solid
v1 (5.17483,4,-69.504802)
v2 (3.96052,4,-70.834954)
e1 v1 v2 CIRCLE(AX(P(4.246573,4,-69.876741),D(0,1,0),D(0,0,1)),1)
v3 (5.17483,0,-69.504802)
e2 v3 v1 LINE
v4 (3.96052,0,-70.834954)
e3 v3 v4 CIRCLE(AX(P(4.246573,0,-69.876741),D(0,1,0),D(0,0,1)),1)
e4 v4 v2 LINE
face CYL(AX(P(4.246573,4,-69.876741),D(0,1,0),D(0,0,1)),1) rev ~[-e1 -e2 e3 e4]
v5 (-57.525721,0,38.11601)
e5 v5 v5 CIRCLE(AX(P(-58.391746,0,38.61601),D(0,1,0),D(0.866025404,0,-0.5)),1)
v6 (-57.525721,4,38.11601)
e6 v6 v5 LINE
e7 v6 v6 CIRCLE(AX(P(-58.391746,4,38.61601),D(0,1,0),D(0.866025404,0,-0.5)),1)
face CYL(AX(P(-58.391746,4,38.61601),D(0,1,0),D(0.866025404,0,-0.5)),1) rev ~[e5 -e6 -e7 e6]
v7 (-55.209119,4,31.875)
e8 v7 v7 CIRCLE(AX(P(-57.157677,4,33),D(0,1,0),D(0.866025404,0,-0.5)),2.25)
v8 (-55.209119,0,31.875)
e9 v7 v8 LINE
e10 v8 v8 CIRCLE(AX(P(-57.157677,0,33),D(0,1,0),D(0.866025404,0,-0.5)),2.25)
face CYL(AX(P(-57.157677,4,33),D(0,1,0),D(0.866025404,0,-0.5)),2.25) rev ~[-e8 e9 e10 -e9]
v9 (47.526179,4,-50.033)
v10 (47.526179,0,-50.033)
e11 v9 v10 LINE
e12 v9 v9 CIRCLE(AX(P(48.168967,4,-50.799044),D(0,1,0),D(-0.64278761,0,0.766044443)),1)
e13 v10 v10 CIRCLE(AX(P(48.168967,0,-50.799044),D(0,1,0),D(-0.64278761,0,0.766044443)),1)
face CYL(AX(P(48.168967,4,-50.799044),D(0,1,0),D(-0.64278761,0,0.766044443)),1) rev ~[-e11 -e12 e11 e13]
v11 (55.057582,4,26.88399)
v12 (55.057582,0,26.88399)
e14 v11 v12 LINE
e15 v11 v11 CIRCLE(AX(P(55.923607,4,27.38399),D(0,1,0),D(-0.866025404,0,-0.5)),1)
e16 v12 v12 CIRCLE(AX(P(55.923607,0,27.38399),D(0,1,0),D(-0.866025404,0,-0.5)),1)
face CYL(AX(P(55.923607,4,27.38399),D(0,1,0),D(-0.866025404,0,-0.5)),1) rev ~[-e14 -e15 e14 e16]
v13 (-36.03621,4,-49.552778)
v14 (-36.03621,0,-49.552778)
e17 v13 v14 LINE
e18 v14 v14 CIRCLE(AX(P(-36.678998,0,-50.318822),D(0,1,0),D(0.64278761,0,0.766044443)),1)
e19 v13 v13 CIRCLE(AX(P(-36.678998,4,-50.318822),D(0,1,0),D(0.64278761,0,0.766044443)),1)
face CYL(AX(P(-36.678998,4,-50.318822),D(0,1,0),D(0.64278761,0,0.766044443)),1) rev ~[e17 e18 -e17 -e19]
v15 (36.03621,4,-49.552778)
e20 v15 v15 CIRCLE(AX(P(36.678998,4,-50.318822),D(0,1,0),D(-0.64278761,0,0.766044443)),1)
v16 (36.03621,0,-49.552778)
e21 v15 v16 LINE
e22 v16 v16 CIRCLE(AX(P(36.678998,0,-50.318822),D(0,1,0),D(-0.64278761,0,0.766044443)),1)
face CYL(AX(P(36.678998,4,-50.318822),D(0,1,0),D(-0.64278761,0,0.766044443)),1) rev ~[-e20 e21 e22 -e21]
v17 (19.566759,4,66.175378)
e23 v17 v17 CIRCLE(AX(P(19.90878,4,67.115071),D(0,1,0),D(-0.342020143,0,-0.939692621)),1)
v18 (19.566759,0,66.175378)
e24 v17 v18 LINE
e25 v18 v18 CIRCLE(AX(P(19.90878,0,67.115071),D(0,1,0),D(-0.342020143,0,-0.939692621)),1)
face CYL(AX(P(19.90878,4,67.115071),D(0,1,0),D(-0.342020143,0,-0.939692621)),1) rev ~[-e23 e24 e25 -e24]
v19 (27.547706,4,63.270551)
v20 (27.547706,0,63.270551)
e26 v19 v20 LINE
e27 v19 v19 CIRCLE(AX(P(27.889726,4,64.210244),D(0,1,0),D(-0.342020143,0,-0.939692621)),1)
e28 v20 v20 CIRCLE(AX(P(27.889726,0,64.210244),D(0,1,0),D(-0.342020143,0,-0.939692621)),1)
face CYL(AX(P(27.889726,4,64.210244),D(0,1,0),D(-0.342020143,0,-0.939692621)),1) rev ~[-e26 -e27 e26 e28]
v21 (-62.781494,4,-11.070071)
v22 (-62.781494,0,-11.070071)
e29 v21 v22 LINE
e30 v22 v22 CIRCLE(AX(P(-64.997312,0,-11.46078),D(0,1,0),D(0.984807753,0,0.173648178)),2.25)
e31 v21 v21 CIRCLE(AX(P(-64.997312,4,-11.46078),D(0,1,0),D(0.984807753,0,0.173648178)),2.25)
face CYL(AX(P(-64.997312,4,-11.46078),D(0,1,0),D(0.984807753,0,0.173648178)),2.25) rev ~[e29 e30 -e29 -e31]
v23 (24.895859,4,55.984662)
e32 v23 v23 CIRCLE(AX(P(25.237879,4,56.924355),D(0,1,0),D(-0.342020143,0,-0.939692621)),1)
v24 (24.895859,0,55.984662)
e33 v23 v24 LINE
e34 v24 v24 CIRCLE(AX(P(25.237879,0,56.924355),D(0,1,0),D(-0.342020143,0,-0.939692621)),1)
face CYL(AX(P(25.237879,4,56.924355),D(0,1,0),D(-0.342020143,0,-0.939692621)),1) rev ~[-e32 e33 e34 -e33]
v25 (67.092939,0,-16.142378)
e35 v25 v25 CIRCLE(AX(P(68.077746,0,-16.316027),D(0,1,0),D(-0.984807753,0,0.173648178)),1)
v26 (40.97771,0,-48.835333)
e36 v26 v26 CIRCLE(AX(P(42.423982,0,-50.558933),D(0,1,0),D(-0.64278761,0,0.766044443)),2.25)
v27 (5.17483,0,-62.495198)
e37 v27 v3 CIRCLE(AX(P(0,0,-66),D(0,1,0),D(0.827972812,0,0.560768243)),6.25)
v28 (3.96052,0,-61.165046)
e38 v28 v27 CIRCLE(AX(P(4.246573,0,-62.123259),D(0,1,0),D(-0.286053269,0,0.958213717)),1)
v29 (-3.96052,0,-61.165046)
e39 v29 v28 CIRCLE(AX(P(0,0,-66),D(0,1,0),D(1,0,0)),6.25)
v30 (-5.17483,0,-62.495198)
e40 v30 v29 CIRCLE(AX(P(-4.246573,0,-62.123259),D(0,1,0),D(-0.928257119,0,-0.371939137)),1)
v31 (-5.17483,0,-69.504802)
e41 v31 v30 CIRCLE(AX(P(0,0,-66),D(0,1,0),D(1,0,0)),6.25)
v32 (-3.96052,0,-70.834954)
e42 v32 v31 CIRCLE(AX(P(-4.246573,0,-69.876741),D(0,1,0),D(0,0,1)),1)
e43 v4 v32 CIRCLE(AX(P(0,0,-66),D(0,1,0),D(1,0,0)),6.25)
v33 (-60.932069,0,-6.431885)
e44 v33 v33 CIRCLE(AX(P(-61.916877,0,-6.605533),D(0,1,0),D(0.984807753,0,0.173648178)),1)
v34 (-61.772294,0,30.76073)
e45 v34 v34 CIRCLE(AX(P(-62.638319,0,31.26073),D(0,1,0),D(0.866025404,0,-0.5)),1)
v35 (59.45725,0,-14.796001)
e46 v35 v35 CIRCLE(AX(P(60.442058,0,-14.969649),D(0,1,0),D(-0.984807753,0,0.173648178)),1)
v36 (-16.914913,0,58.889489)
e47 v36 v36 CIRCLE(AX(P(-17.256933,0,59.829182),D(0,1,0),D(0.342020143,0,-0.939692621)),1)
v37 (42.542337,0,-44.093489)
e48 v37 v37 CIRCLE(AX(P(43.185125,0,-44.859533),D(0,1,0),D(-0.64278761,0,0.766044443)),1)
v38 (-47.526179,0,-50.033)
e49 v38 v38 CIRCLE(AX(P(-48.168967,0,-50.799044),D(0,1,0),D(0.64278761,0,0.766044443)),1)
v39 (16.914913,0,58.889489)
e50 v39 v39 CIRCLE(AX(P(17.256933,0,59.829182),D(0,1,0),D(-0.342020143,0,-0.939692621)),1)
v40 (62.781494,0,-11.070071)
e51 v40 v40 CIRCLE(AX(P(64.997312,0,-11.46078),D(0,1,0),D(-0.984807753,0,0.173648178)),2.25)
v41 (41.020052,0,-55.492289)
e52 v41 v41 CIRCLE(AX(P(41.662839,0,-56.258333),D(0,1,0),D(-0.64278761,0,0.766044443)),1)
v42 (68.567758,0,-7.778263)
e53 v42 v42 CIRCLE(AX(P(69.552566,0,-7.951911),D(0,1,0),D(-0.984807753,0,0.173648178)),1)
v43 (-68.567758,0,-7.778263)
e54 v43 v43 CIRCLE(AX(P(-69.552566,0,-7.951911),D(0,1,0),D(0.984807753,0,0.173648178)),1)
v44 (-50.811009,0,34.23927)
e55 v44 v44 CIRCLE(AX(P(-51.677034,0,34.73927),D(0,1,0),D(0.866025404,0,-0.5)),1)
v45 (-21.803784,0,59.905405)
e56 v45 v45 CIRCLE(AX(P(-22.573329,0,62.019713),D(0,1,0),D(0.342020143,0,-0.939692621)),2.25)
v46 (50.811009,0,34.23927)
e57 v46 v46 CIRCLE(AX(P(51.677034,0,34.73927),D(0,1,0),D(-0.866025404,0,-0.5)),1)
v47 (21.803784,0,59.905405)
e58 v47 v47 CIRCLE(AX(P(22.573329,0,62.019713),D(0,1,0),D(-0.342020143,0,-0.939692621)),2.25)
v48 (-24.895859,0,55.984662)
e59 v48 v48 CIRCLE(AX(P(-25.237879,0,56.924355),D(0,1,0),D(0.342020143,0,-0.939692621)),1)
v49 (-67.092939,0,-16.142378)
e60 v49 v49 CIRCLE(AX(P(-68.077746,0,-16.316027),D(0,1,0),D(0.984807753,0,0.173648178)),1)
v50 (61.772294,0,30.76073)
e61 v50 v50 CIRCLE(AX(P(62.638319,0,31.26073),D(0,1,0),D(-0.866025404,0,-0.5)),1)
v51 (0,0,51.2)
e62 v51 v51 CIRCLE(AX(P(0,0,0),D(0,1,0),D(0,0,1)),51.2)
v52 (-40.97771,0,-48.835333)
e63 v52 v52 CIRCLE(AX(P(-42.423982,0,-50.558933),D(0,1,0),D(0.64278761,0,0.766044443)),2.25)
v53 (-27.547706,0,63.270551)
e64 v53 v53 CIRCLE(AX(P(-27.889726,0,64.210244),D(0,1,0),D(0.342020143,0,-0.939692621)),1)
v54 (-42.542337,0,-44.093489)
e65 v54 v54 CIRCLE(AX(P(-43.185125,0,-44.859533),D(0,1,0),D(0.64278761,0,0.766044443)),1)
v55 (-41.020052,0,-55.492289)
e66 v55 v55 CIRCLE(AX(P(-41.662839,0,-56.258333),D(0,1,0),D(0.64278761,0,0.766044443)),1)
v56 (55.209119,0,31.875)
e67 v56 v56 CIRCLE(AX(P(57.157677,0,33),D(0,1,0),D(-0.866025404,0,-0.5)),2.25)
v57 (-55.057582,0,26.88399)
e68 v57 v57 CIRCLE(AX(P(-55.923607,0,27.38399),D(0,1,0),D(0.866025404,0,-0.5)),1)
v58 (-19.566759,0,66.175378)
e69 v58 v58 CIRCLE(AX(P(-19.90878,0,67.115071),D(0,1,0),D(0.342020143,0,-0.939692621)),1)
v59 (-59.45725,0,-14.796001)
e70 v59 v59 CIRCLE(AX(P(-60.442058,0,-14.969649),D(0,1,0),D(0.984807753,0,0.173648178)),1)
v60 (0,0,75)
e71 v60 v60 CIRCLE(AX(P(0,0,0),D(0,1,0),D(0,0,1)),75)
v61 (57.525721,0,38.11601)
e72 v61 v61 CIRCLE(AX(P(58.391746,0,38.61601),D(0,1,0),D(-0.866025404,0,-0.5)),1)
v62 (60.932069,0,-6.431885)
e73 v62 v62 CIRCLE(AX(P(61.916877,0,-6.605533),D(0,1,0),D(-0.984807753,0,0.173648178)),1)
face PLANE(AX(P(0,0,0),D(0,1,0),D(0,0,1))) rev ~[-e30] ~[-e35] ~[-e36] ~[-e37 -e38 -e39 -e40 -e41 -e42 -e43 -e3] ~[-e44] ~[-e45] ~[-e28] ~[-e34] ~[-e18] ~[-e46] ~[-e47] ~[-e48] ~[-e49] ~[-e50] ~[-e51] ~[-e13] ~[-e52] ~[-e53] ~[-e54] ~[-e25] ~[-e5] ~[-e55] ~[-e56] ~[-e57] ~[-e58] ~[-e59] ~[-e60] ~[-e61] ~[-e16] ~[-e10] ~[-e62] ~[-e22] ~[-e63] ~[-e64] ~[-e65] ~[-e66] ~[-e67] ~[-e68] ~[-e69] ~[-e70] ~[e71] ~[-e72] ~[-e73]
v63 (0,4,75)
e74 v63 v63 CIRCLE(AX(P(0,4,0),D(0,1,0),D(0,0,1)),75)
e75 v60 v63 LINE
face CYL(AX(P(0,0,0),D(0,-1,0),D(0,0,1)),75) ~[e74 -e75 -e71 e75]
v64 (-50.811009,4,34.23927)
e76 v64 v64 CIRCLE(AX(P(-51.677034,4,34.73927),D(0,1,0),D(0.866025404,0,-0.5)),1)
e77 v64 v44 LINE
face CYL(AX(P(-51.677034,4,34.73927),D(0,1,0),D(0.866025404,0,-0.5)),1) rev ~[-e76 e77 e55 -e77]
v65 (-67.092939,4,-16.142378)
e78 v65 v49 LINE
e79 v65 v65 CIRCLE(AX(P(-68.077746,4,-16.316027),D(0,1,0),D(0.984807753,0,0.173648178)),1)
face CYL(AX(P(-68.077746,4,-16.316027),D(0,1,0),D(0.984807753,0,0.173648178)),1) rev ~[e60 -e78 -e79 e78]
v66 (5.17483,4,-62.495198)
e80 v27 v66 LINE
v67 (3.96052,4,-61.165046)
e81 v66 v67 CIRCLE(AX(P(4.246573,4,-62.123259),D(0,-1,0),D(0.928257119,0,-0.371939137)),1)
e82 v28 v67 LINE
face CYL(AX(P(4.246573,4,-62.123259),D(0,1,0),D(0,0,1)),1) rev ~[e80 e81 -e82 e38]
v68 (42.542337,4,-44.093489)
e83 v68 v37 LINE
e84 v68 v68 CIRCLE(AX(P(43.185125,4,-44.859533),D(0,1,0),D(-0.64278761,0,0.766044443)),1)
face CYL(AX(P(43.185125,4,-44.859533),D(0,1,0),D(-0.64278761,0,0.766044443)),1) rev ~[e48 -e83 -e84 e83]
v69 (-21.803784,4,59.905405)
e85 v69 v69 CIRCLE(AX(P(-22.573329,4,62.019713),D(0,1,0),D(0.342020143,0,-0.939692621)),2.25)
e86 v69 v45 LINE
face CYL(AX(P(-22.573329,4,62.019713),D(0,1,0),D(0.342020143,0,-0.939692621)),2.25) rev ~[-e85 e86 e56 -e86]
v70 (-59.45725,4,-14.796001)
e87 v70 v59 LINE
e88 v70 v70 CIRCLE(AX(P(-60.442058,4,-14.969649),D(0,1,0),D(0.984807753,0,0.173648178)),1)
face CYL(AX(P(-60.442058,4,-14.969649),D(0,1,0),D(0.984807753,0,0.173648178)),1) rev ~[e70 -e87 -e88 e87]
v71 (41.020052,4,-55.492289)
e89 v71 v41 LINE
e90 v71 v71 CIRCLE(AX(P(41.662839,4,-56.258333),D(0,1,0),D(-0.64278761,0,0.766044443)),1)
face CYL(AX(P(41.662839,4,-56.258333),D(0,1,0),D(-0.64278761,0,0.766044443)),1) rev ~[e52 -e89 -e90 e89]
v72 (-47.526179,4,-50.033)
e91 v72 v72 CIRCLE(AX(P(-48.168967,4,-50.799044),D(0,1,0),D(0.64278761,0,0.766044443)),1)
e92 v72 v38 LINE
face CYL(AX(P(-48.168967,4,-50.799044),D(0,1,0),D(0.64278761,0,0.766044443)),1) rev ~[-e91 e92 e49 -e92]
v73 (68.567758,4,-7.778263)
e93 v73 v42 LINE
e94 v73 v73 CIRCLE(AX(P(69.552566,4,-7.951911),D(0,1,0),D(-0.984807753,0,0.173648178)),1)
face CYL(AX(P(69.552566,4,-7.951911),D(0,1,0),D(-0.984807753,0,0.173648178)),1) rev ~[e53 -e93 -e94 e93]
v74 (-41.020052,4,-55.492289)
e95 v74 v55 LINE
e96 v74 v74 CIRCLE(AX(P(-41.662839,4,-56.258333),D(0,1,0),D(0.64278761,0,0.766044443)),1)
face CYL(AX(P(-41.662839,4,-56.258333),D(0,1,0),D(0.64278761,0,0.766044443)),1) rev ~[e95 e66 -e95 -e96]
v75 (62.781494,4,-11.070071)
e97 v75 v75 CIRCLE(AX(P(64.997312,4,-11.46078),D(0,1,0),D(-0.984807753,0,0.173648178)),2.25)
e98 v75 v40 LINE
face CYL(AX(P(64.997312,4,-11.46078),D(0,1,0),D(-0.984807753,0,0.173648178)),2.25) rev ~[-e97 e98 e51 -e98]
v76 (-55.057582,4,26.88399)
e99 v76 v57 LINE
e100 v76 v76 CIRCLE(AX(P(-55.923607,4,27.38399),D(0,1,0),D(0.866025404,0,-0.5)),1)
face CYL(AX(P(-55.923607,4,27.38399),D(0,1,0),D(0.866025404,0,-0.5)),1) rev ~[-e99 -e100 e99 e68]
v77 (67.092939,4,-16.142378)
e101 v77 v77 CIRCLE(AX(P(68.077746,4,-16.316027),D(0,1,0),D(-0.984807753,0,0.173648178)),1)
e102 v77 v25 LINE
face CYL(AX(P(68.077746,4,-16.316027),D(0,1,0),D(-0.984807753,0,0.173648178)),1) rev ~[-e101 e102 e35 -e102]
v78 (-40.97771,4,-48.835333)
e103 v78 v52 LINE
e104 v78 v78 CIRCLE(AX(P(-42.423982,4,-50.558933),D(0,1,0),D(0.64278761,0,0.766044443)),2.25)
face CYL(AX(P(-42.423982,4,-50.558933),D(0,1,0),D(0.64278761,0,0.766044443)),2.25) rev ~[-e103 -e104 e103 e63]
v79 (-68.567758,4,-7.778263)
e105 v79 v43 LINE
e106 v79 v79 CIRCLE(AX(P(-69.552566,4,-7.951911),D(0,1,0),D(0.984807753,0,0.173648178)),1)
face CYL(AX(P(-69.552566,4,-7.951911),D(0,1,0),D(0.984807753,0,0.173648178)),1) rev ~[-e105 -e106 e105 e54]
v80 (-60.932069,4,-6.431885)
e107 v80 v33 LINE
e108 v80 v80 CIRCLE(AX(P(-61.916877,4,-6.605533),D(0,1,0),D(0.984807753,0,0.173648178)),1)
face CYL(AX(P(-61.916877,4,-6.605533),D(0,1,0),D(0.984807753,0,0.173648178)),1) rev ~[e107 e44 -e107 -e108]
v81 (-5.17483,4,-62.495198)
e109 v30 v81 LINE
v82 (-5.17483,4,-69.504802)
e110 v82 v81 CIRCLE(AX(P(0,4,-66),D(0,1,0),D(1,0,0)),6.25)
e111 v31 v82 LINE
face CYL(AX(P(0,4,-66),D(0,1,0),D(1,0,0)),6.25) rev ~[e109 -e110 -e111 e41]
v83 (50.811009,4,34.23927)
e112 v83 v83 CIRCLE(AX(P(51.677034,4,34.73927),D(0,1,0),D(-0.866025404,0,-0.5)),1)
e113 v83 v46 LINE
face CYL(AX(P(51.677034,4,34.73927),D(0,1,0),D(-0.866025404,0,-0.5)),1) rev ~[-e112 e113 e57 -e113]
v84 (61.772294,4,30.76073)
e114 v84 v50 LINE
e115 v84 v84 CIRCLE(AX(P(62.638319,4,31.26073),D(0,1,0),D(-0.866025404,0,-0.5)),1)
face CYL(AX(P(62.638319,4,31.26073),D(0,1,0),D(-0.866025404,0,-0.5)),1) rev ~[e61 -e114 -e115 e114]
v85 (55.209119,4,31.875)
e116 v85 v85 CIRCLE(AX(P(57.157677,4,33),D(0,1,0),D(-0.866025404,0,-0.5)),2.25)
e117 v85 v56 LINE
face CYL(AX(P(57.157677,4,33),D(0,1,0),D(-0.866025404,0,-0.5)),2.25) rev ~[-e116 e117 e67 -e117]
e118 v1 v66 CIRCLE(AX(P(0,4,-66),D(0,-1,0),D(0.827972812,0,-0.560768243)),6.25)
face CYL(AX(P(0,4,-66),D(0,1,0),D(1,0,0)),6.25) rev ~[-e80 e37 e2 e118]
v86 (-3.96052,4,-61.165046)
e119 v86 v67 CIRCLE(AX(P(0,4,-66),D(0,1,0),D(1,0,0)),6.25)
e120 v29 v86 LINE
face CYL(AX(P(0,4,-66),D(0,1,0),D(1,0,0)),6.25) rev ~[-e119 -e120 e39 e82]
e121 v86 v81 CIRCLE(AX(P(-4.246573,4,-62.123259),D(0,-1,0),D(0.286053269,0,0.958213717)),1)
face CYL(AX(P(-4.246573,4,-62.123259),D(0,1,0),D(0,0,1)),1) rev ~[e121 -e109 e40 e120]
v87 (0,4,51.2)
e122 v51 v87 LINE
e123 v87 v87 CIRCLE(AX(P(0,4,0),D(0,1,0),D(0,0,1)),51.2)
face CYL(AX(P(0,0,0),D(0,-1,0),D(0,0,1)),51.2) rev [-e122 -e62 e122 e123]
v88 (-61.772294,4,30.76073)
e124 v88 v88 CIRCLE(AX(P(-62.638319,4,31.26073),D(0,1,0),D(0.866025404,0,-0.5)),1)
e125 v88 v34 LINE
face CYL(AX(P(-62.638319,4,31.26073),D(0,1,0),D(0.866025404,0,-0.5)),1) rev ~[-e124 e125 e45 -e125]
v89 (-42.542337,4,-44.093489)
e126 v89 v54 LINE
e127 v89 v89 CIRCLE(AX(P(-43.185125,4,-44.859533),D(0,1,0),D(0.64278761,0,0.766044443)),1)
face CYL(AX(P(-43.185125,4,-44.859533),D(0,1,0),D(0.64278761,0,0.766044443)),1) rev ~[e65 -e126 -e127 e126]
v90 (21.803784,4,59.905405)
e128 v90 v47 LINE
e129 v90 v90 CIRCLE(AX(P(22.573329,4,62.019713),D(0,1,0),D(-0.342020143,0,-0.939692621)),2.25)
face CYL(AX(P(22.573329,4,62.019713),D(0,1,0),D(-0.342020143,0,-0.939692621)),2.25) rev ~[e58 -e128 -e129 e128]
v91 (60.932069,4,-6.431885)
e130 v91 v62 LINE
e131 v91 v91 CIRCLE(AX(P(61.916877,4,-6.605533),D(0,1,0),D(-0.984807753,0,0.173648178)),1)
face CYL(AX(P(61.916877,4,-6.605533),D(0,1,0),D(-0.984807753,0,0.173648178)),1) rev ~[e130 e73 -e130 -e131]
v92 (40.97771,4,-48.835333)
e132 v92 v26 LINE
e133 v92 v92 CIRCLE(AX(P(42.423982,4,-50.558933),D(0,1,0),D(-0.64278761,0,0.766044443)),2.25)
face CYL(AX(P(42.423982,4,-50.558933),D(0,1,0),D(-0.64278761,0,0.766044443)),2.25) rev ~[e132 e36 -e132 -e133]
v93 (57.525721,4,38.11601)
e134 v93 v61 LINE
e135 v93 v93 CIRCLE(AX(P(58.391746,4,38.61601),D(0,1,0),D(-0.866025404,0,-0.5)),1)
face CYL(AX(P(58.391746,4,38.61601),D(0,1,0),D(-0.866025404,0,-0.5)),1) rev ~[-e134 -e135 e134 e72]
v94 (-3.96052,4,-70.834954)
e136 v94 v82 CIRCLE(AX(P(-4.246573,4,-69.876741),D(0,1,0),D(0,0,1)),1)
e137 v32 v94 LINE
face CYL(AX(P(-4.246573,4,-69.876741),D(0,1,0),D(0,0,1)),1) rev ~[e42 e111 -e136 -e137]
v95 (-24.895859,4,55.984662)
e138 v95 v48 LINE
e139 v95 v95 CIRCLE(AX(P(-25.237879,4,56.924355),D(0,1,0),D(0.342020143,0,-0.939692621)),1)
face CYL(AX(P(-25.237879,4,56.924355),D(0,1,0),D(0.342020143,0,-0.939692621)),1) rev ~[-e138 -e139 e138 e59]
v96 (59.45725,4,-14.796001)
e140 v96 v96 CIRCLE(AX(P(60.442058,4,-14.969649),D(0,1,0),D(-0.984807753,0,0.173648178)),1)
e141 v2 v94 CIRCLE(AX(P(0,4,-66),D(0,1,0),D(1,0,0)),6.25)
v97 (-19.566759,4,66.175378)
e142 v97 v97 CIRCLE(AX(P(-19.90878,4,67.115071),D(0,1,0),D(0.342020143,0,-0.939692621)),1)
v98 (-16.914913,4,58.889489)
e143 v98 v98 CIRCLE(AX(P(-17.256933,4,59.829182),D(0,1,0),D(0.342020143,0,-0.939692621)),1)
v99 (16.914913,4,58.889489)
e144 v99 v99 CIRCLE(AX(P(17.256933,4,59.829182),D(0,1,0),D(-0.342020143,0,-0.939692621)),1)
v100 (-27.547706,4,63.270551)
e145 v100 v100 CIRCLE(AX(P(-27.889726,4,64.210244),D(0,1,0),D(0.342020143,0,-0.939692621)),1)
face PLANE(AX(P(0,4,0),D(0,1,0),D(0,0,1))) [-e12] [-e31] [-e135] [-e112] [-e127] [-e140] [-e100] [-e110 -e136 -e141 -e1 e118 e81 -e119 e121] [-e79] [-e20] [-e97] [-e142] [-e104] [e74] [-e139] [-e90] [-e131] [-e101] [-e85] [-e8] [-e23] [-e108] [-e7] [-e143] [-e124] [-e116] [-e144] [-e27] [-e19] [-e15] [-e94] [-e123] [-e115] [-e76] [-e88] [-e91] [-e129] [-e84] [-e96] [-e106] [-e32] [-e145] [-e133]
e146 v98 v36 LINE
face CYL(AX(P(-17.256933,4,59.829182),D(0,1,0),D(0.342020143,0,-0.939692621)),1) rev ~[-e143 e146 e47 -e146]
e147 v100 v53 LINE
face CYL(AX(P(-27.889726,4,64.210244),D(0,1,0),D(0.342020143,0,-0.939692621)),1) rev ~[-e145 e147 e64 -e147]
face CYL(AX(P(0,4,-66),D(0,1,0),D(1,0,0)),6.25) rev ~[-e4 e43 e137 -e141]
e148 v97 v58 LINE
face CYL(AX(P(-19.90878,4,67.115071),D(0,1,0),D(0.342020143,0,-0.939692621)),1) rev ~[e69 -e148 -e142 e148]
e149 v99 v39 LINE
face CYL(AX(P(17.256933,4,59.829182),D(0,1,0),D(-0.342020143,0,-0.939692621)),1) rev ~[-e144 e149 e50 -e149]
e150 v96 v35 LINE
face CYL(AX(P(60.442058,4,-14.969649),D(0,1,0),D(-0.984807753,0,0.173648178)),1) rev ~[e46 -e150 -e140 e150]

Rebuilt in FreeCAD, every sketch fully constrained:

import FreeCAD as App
import Part
import Sketcher

V = App.Vector
Q = App.Units.Quantity

doc = App.newDocument("Part")
body = doc.addObject("PartDesign::Body", "Body")

sketch1 = doc.addObject("Sketcher::SketchObject", "Sketch")
body.addObject(sketch1)
sketch1.AttachmentSupport = (doc.XZ_Plane, [""])
sketch1.MapMode = "FlatFace"
sketch1.addGeometry(Part.Circle(V(0, 0, 0), V(0, 0, 1), 75), False)
sketch1.addGeometry(Part.Circle(V(0, 0, 0), V(0, 0, 1), 51), False)
sketch1.addConstraint(Sketcher.Constraint("Coincident", 0, 3, -1, 1))
sketch1.addConstraint(Sketcher.Constraint("Coincident", 1, 3, -1, 1))
sketch1.addConstraint(Sketcher.Constraint("Diameter", 0, Q("150 mm")))
sketch1.addConstraint(Sketcher.Constraint("Diameter", 1, Q("102.4 mm")))
pad1 = doc.addObject("PartDesign::Pad", "Pad")
body.addObject(pad1)
pad1.Profile = sketch1
pad1.Length = 4
pad1.Reversed = True

sketch2 = doc.addObject("Sketcher::SketchObject", "Sketch001")
body.addObject(sketch2)
sketch2.AttachmentSupport = (doc.XZ_Plane, [""])
sketch2.MapMode = "FlatFace"
sketch2.AttachmentOffset = App.Placement(V(0, 0, -4), App.Rotation())
sketch2.addGeometry(Part.Circle(V(0, -66, 0), V(0, 0, 1), 2.2), False)
sketch2.addGeometry(Part.Circle(V(4.2, -69.9, 0), V(0, 0, 1), 1), False)
sketch2.addGeometry(Part.Circle(V(4.2, -62.1, 0), V(0, 0, 1), 1), False)
sketch2.addGeometry(Part.Circle(V(-4.2, -62.1, 0), V(0, 0, 1), 1), False)
sketch2.addGeometry(Part.Circle(V(-4.2, -69.9, 0), V(0, 0, 1), 1), False)
sketch2.addConstraint(Sketcher.Constraint("Equal", 1, 2))
sketch2.addConstraint(Sketcher.Constraint("Equal", 2, 3))
sketch2.addConstraint(Sketcher.Constraint("Equal", 3, 4))
sketch2.addConstraint(Sketcher.Constraint("Symmetric", 2, 3, 3, 3, -2))
sketch2.addConstraint(Sketcher.Constraint("Symmetric", 1, 3, 4, 3, -2))
sketch2.addConstraint(Sketcher.Constraint("PointOnObject", 0, 3, -2))
sketch2.addConstraint(Sketcher.Constraint("Vertical", 1, 3, 2, 3))
sketch2.addConstraint(Sketcher.Constraint("Diameter", 1, Q("2 mm")))
sketch2.addConstraint(Sketcher.Constraint("Diameter", 0, Q("4.5 mm")))
sketch2.addConstraint(Sketcher.Constraint("DistanceY", 0, 3, -1, 1, Q("66 mm")))
sketch2.addConstraint(Sketcher.Constraint("DistanceY", 1, 3, -1, 1, Q("69.876741 mm")))
sketch2.addConstraint(Sketcher.Constraint("DistanceY", 2, 3, -1, 1, Q("62.123259 mm")))
sketch2.addConstraint(Sketcher.Constraint("DistanceX", -1, 1, 1, 3, Q("4.246573 mm")))
pocket1 = doc.addObject("PartDesign::Pocket", "Pocket")
body.addObject(pocket1)
pocket1.Profile = sketch2
pocket1.Type = "ThroughAll"
pocket1.Reversed = True
doc.recompute()

polarpattern = doc.addObject("PartDesign::PolarPattern", "PolarPattern")
body.addObject(polarpattern)
polarpattern.Originals = [pocket1]
polarpattern.Axis = (doc.Y_Axis, [""])
polarpattern.Angle = 360
polarpattern.Occurrences = 9
body.Tip = polarpattern

sketch3 = doc.addObject("Sketcher::SketchObject", "Sketch002")
body.addObject(sketch3)
sketch3.AttachmentSupport = (doc.XZ_Plane, [""])
sketch3.MapMode = "FlatFace"
sketch3.AttachmentOffset = App.Placement(V(0, 0, -4), App.Rotation())
sketch3.addGeometry(Part.Circle(V(0, -66, 0), V(0, 0, 1), 6), False)
sketch3.addConstraint(Sketcher.Constraint("PointOnObject", 0, 3, -2))
sketch3.addConstraint(Sketcher.Constraint("Diameter", 0, Q("12.5 mm")))
sketch3.addConstraint(Sketcher.Constraint("DistanceY", 0, 3, -1, 1, Q("66 mm")))
pocket2 = doc.addObject("PartDesign::Pocket", "Pocket001")
body.addObject(pocket2)
pocket2.Profile = sketch3
pocket2.Length = 10
pocket2.Reversed = True

doc.recompute()
